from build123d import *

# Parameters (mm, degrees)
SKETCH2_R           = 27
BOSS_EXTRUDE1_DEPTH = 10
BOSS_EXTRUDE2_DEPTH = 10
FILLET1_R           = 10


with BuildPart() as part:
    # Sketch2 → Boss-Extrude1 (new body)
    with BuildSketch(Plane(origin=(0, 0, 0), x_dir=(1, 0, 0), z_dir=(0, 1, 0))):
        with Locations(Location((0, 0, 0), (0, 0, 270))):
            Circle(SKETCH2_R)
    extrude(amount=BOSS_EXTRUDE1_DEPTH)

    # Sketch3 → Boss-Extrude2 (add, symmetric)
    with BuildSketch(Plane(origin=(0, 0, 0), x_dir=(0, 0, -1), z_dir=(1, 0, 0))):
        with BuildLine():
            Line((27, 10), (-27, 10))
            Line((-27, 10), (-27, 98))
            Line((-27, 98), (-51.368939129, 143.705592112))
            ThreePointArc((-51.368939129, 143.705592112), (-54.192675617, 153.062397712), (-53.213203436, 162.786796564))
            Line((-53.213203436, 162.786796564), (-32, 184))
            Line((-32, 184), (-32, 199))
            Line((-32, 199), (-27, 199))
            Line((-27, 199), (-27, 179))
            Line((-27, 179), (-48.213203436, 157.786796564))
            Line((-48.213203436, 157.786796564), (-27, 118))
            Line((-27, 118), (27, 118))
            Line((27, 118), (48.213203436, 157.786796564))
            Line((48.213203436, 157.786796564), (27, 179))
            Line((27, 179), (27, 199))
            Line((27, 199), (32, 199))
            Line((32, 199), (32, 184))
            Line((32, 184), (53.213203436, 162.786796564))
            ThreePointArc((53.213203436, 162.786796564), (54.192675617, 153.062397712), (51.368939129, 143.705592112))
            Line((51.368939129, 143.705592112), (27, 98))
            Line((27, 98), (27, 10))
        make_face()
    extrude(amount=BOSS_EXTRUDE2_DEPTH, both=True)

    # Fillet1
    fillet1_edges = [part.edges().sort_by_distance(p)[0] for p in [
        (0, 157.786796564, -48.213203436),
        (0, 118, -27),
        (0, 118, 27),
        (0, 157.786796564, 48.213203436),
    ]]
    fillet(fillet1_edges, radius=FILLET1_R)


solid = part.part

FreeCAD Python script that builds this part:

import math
import FreeCAD as App
import Part
import Sketcher
from FreeCAD import Vector
Q = App.Units.Quantity


def edges_at(feature, points):
    """Names of the edges that pass closest to the given points."""
    edges = feature.Shape.Edges
    near = lambda p: min(range(len(edges)), key=lambda i: edges[i].distToShape(Part.Vertex(*p))[0])
    return sorted({f"Edge{near(p) + 1}" for p in points})

doc = App.newDocument("Part")
body = doc.addObject("PartDesign::Body", "Body")

# Sketch on XZ plane
sketch1 = doc.addObject("Sketcher::SketchObject", "Sketch")
body.addObject(sketch1)
sketch1.AttachmentSupport = (doc.XZ_Plane, [""])
sketch1.MapMode = "FlatFace"
sketch1.addGeometry(Part.Circle(Vector(0, 0, 0), Vector(0, 0, 1), 27), False)
sketch1.addConstraint([
    Sketcher.Constraint("Coincident", 0, 3, -1, 1),
    Sketcher.Constraint("Diameter", 0, Q("54 mm")),
])
pad1 = doc.addObject("PartDesign::Pad", "Pad")
body.addObject(pad1)
pad1.Profile = sketch1
pad1.Length = 10
pad1.Reversed = True

# Sketch on YZ plane
sketch2 = doc.addObject("Sketcher::SketchObject", "Sketch001")
body.addObject(sketch2)
sketch2.AttachmentSupport = (doc.YZ_Plane, [""])
sketch2.MapMode = "FlatFace"
sketch2.addGeometry([
    Part.LineSegment(Vector(10, 27, 0), Vector(10, -27, 0)),  # 0
    Part.LineSegment(Vector(10, -27, 0), Vector(98, -27, 0)),  # 1
    Part.LineSegment(Vector(98, -27, 0), Vector(144, -51, 0)),  # 2
    Part.ArcOfCircle(Part.Circle(Vector(155, -29, 0), Vector(0, 0, 1), 25), math.radians(-118), math.radians(-73)),  # 3
    Part.LineSegment(Vector(163, -53, 0), Vector(184, -32, 0)),  # 4
    Part.LineSegment(Vector(184, -32, 0), Vector(199, -32, 0)),  # 5
    Part.LineSegment(Vector(199, -32, 0), Vector(199, -27, 0)),  # 6
    Part.LineSegment(Vector(199, -27, 0), Vector(179, -27, 0)),  # 7
    Part.LineSegment(Vector(179, -27, 0), Vector(158, -48, 0)),  # 8
    Part.LineSegment(Vector(158, -48, 0), Vector(118, -27, 0)),  # 9
    Part.LineSegment(Vector(118, -27, 0), Vector(118, 27, 0)),  # 10
    Part.LineSegment(Vector(118, 27, 0), Vector(158, 48, 0)),  # 11
    Part.LineSegment(Vector(158, 48, 0), Vector(179, 27, 0)),  # 12
    Part.LineSegment(Vector(179, 27, 0), Vector(199, 27, 0)),  # 13
    Part.LineSegment(Vector(199, 27, 0), Vector(199, 32, 0)),  # 14
    Part.LineSegment(Vector(199, 32, 0), Vector(184, 32, 0)),  # 15
    Part.LineSegment(Vector(184, 32, 0), Vector(163, 53, 0)),  # 16
    Part.ArcOfCircle(Part.Circle(Vector(155, 29, 0), Vector(0, 0, 1), 25), math.radians(73), math.radians(118)),  # 17
    Part.LineSegment(Vector(144, 51, 0), Vector(98, 27, 0)),  # 18
    Part.LineSegment(Vector(98, 27, 0), Vector(10, 27, 0)),  # 19
], False)
sketch2.addConstraint([
    Sketcher.Constraint("Coincident", 0, 2, 1, 1),
    Sketcher.Constraint("Coincident", 1, 2, 2, 1),
    Sketcher.Constraint("Tangent", 2, 2, 3, 1),
    Sketcher.Constraint("Coincident", 3, 2, 4, 1),
    Sketcher.Constraint("Coincident", 4, 2, 5, 1),
    Sketcher.Constraint("Coincident", 5, 2, 6, 1),
    Sketcher.Constraint("Coincident", 6, 2, 7, 1),
    Sketcher.Constraint("Coincident", 7, 2, 8, 1),
    Sketcher.Constraint("Coincident", 8, 2, 9, 1),
    Sketcher.Constraint("Coincident", 9, 2, 10, 1),
    Sketcher.Constraint("Coincident", 10, 2, 11, 1),
    Sketcher.Constraint("Coincident", 11, 2, 12, 1),
    Sketcher.Constraint("Coincident", 12, 2, 13, 1),
    Sketcher.Constraint("Coincident", 13, 2, 14, 1),
    Sketcher.Constraint("Coincident", 14, 2, 15, 1),
    Sketcher.Constraint("Coincident", 15, 2, 16, 1),
    Sketcher.Constraint("Coincident", 16, 2, 17, 1),
    Sketcher.Constraint("Tangent", 17, 2, 18, 1),
    Sketcher.Constraint("Coincident", 18, 2, 19, 1),
    Sketcher.Constraint("Coincident", 19, 2, 0, 1),
    Sketcher.Constraint("Vertical", 0),
    Sketcher.Constraint("Horizontal", 1),
    Sketcher.Constraint("Horizontal", 5),
    Sketcher.Constraint("Vertical", 6),
    Sketcher.Constraint("Horizontal", 7),
    Sketcher.Constraint("Vertical", 10),
    Sketcher.Constraint("Horizontal", 13),
    Sketcher.Constraint("Vertical", 14),
    Sketcher.Constraint("Horizontal", 15),
    Sketcher.Constraint("Horizontal", 19),
    Sketcher.Constraint("Equal", 3, 17),
    Sketcher.Constraint("Symmetric", 3, 3, 17, 3, -1),
    Sketcher.Constraint("Symmetric", 8, 2, 11, 2, -1),
    Sketcher.Constraint("Symmetric", 7, 2, 12, 2, -1),
    Sketcher.Constraint("Symmetric", 5, 2, 14, 2, -1),
    Sketcher.Constraint("Symmetric", 1, 2, 18, 2, -1),
    Sketcher.Constraint("Parallel", 4, 8),
    Sketcher.Constraint("Parallel", 2, 9),
    Sketcher.Constraint("Perpendicular", 8, 12),
    Sketcher.Constraint("Parallel", 12, 16),
    Sketcher.Constraint("Parallel", 11, 18),
    Sketcher.Constraint("Horizontal", 1, 2, 6, 2),
    Sketcher.Constraint("Horizontal", 7, 2, 9, 2),
    Sketcher.Constraint("Vertical", 4, 2, 15, 2),
    Sketcher.Constraint("Equal", 4, 8),
    Sketcher.Constraint("Radius", 3, Q("25 mm")),
    Sketcher.Constraint("DistanceX", 1, 1, 1, 2, Q("88 mm")),
    Sketcher.Constraint("DistanceX", 5, 1, 5, 2, Q("15 mm")),
    Sketcher.Constraint("DistanceX", 7, 2, 7, 1, Q("20 mm")),
    Sketcher.Constraint("DistanceY", 0, 2, 0, 1, Q("54 mm")),
    Sketcher.Constraint("DistanceY", 6, 1, 6, 2, Q("5 mm")),
    Sketcher.Constraint("Distance", 4, Q("30 mm")),
    Sketcher.Constraint("DistanceX", -1, 1, 0, 2, Q("10 mm")),
    Sketcher.Constraint("DistanceX", -1, 1, 4, 2, Q("184 mm")),
    Sketcher.Constraint("DistanceX", -1, 1, 9, 2, Q("118 mm")),
])
pad2 = doc.addObject("PartDesign::Pad", "Pad001")
body.addObject(pad2)
pad2.Profile = sketch2
pad2.Length = 20
pad2.Midplane = True
doc.recompute()

fillet = doc.addObject("PartDesign::Fillet", "Fillet")
body.addObject(fillet)
fillet.Base = (pad2, edges_at(pad2, [
    (0, 157.787, -48.213),
    (0, 118, -27),
    (0, 118, 27),
    (0, 157.787, 48.213),
]))
fillet.Radius = 10

doc.recompute()
